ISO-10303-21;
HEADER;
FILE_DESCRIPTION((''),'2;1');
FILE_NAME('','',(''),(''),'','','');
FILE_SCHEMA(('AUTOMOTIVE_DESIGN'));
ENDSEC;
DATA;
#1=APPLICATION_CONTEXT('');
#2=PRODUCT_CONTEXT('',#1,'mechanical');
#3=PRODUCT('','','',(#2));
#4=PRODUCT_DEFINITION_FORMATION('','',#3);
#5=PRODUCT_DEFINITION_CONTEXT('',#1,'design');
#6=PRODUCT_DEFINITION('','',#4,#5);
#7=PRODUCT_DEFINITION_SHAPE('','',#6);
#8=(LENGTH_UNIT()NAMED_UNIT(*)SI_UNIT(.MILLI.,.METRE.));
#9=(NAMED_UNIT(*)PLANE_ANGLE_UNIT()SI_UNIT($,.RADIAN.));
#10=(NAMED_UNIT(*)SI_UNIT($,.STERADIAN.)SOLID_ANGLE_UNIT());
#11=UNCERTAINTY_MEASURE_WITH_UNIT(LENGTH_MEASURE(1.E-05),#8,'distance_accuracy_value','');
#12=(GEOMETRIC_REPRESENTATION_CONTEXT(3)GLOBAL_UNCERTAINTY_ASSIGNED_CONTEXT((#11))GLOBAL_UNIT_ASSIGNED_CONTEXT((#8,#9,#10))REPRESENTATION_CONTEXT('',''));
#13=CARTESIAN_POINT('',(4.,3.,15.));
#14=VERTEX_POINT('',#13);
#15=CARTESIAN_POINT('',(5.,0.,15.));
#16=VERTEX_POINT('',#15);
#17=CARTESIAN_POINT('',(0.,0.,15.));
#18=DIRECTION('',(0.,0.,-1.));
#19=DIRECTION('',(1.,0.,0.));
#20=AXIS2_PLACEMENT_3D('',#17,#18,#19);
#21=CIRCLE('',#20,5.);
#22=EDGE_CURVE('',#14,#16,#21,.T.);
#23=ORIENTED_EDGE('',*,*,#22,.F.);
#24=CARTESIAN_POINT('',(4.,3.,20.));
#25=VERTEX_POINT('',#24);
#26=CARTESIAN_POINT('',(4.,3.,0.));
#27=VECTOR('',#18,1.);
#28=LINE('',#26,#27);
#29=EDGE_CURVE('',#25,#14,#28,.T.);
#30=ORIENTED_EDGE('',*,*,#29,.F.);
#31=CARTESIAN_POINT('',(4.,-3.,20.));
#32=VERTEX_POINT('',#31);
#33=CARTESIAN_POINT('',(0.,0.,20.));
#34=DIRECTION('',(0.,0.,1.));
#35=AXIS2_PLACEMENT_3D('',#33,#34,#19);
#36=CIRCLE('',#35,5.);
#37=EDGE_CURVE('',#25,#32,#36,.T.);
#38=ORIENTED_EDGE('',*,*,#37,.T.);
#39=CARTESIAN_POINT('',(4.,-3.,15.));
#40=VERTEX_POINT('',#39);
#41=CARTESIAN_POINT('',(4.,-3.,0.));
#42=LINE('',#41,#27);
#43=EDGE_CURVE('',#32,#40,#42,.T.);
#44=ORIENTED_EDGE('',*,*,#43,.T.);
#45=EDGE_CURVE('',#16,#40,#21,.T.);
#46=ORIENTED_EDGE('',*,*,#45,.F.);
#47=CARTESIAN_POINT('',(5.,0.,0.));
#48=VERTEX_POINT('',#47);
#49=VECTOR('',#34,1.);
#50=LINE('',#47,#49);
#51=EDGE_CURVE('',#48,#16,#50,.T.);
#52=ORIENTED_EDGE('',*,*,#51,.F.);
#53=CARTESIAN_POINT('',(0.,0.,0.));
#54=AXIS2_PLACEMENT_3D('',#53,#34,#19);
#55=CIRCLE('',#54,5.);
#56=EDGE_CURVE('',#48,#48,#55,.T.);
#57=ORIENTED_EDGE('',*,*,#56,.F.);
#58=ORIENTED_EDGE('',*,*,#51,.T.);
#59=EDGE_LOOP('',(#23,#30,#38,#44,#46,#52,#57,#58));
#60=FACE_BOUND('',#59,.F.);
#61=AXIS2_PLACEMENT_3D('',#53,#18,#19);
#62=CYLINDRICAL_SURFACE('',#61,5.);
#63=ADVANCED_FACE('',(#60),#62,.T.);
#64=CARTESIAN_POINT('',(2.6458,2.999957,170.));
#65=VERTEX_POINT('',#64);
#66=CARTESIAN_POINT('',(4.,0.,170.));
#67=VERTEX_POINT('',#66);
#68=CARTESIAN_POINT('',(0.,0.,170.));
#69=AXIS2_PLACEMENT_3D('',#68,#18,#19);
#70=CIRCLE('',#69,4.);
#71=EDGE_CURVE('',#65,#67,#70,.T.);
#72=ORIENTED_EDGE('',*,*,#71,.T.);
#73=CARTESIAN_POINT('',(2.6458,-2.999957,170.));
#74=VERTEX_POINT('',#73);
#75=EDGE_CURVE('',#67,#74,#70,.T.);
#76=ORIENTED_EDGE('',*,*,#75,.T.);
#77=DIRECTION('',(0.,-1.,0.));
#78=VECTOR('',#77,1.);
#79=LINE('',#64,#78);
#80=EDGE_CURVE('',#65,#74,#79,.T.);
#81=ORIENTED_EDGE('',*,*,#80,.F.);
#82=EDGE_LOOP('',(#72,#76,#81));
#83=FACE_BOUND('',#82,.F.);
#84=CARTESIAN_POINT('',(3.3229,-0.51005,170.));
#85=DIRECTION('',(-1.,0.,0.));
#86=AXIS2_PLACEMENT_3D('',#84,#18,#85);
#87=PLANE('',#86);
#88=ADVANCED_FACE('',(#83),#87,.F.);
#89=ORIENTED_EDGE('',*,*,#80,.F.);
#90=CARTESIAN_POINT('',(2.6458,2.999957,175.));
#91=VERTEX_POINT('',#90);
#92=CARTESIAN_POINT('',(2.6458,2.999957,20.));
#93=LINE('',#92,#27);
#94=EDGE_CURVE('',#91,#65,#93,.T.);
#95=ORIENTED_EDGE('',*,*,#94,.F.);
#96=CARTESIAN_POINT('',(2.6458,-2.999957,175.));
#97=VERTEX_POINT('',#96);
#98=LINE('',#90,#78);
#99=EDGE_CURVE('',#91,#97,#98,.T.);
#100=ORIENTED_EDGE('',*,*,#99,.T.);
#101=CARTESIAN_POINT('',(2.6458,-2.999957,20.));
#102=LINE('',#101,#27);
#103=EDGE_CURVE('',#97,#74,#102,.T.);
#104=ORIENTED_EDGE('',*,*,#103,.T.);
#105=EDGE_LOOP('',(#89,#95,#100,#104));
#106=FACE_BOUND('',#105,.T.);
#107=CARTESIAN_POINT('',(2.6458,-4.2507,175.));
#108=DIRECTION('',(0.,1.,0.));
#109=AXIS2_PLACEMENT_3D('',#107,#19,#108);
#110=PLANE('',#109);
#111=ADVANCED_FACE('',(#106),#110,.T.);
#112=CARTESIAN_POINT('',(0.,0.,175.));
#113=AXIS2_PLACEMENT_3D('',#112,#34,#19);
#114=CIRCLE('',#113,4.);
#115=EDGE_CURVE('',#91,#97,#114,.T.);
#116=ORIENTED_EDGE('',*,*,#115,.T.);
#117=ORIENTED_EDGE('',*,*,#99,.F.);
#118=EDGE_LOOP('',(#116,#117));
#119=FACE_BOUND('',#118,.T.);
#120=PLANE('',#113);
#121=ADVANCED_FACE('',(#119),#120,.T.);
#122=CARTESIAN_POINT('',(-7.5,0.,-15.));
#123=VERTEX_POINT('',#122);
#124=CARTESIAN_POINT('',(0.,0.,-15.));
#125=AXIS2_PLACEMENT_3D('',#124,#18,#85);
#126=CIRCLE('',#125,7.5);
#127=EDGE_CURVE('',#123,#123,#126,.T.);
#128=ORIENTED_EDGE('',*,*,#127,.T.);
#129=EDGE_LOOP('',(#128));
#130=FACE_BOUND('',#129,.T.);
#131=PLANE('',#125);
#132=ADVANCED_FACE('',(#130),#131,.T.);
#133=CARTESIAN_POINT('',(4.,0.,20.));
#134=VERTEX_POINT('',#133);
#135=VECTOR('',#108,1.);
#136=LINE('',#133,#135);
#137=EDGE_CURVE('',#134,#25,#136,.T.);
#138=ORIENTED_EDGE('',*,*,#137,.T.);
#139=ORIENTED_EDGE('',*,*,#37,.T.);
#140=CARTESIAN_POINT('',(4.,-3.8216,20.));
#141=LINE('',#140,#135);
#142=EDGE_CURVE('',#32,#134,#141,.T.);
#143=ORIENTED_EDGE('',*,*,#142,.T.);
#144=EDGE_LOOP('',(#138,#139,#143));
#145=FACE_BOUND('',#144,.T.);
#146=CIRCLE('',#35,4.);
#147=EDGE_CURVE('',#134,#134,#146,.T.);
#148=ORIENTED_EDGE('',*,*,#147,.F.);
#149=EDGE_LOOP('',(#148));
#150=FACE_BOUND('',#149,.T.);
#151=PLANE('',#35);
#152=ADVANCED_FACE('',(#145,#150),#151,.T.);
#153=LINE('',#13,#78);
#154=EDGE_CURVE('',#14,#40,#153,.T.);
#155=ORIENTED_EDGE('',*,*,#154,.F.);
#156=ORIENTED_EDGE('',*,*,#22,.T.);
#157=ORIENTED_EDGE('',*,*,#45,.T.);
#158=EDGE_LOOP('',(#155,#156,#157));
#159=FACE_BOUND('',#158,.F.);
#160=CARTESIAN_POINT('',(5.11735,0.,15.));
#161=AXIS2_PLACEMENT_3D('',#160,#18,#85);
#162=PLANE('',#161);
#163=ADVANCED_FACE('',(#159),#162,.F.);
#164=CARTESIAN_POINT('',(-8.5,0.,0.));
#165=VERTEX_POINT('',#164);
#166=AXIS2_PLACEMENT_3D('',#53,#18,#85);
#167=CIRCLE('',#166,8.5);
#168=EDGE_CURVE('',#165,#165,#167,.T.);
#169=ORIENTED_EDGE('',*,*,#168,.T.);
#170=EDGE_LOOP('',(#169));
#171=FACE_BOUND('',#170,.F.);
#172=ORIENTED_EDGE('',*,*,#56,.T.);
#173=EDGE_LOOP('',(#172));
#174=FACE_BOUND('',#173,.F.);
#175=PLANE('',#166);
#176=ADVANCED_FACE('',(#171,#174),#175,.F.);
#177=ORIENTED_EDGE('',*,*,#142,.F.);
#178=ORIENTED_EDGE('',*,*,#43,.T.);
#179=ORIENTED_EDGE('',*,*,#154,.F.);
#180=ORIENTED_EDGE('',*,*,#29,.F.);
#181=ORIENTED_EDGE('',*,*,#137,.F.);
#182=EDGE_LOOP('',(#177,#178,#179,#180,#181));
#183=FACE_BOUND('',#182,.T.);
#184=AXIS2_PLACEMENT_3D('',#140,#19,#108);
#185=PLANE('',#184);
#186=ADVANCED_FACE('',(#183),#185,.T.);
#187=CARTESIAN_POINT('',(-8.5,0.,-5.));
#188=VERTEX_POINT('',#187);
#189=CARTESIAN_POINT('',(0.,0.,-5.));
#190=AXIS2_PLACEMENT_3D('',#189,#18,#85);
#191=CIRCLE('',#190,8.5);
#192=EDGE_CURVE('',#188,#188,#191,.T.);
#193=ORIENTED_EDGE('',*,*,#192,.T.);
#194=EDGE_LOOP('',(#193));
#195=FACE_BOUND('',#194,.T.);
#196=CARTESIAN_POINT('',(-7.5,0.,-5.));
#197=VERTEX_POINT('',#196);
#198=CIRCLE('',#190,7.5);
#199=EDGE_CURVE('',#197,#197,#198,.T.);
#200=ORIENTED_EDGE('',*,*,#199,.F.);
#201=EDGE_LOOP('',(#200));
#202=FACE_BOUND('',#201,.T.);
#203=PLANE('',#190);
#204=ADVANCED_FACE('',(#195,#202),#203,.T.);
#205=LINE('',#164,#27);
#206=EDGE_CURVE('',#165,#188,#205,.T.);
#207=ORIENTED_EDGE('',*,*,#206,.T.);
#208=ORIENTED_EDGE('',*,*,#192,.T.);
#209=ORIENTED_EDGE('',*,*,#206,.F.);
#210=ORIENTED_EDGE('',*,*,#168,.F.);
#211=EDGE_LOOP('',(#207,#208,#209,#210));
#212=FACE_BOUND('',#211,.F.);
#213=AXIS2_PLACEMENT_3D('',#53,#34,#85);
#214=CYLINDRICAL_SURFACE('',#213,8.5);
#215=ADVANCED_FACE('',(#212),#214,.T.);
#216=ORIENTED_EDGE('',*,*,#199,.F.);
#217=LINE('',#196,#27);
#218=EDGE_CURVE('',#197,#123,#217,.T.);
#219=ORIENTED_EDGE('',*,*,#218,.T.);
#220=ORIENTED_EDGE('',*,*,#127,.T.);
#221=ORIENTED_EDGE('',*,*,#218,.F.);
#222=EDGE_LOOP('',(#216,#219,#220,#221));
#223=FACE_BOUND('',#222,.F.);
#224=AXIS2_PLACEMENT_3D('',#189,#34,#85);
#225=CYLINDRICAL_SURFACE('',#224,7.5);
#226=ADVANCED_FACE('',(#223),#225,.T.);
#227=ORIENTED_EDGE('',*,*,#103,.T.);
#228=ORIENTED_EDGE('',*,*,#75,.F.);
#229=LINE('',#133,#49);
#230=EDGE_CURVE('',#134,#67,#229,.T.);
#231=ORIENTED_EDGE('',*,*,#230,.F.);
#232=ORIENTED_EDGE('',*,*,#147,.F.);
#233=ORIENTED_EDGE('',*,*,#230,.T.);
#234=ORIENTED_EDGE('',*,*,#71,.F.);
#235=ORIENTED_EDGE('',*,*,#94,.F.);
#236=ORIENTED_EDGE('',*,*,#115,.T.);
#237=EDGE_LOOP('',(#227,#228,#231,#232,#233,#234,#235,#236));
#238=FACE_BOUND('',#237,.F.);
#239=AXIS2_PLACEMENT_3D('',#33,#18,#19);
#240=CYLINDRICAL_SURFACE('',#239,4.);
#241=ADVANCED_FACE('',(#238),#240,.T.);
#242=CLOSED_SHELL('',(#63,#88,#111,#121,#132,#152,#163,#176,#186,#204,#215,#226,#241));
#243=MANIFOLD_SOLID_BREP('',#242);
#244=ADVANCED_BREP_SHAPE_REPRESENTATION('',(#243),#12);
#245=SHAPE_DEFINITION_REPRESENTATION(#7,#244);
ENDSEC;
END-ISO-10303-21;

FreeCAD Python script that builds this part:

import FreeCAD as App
import Part
import Sketcher


def add_polygon(sketch, points):
    """Adds a closed chain of lines whose ends are joined by coincident constraints."""
    first, n = sketch.GeometryCount, len(points)
    for a, b in zip(points, points[1:] + points[:1]):
        sketch.addGeometry(Part.LineSegment(App.Vector(*a, 0), App.Vector(*b, 0)), False)
    for i in range(n):
        sketch.addConstraint(Sketcher.Constraint("Coincident", first + i, 2, first + (i + 1) % n, 1))

doc = App.newDocument("Part")
body = doc.addObject("PartDesign::Body", "Body")

# Sketch on XY plane
sketch1 = body.newObject("Sketcher::SketchObject", "Sketch")
sketch1.AttachmentSupport = (doc.getObject("XY_Plane"), [""])
sketch1.MapMode = "FlatFace"
sketch1.addGeometry(Part.Circle(App.Vector(0, 0, 0), App.Vector(0, 0, 1), 5), False)
sketch1.addConstraint([
    Sketcher.Constraint("Coincident", 0, 3, -1, 1),
    Sketcher.Constraint("Diameter", 0, 10.0),
])
pad1 = body.newObject("PartDesign::Pad", "Pad")
pad1.Profile = sketch1
pad1.Length = 20

# Sketch on XY plane
sketch2 = body.newObject("Sketcher::SketchObject", "Sketch001")
sketch2.AttachmentSupport = (doc.getObject("XY_Plane"), [""])
sketch2.MapMode = "FlatFace"
sketch2.AttachmentOffset = App.Placement(App.Vector(0, 0, 20), App.Rotation())
sketch2.addGeometry(Part.Circle(App.Vector(0, 0, 0), App.Vector(0, 0, 1), 4), False)
sketch2.addConstraint([
    Sketcher.Constraint("Coincident", 0, 3, -1, 1),
    Sketcher.Constraint("Diameter", 0, 8.0),
])
pad2 = body.newObject("PartDesign::Pad", "Pad001")
pad2.Profile = sketch2
pad2.Length = 155

# Sketch on XY plane
sketch3 = body.newObject("Sketcher::SketchObject", "Sketch002")
sketch3.AttachmentSupport = (doc.getObject("XY_Plane"), [""])
sketch3.MapMode = "FlatFace"
sketch3.AttachmentOffset = App.Placement(App.Vector(0, 0, 20), App.Rotation())
add_polygon(sketch3, [(6.2, -3.8), (6.2, 3.8), (4, 3.8), (4, -3.8)])  # lines 0-3
sketch3.addConstraint([
    Sketcher.Constraint("Vertical", 0),
    Sketcher.Constraint("Horizontal", 1),
    Sketcher.Constraint("Vertical", 2),
    Sketcher.Constraint("Horizontal", 3),
    Sketcher.Constraint("DistanceX", -1, 1, 1, 2, 4.0),
    Sketcher.Constraint("DistanceX", 1, 2, 1, 1, 2.2347),
    Sketcher.Constraint("DistanceY", 0, 1, 0, 2, 7.6432),
    Sketcher.Constraint("DistanceY", -1, 1, 0, 2, 3.8216),
])
pocket1 = body.newObject("PartDesign::Pocket", "Pocket")
pocket1.Profile = sketch3
pocket1.Length = 5

# Sketch on XY plane
sketch4 = body.newObject("Sketcher::SketchObject", "Sketch003")
sketch4.AttachmentSupport = (doc.getObject("XY_Plane"), [""])
sketch4.MapMode = "FlatFace"
sketch4.AttachmentOffset = App.Placement(App.Vector(0, 0, 175), App.Rotation())
add_polygon(sketch4, [(4, -4.3), (4, 3.2), (2.6, 3.2), (2.6, -4.3)])  # lines 0-3
sketch4.addConstraint([
    Sketcher.Constraint("Vertical", 0),
    Sketcher.Constraint("Horizontal", 1),
    Sketcher.Constraint("Vertical", 2),
    Sketcher.Constraint("Horizontal", 3),
    Sketcher.Constraint("DistanceX", -1, 1, 0, 2, 4.0),
    Sketcher.Constraint("DistanceX", 1, 2, 1, 1, 1.3542),
    Sketcher.Constraint("DistanceY", 0, 1, 0, 2, 7.4813),
    Sketcher.Constraint("DistanceY", -1, 1, 0, 2, 3.2306),
])
pocket2 = body.newObject("PartDesign::Pocket", "Pocket001")
pocket2.Profile = sketch4
pocket2.Length = 5

# Sketch on XY plane
sketch5 = body.newObject("Sketcher::SketchObject", "Sketch004")
sketch5.AttachmentSupport = (doc.getObject("XY_Plane"), [""])
sketch5.MapMode = "FlatFace"
sketch5.addGeometry(Part.Circle(App.Vector(0, 0, 0), App.Vector(0, 0, 1), 8), False)
sketch5.addConstraint([
    Sketcher.Constraint("Coincident", 0, 3, -1, 1),
    Sketcher.Constraint("Diameter", 0, 17.0),
])
pad3 = body.newObject("PartDesign::Pad", "Pad002")
pad3.Profile = sketch5
pad3.Length = 5
pad3.Reversed = True

# Sketch on XY plane
sketch6 = body.newObject("Sketcher::SketchObject", "Sketch005")
sketch6.AttachmentSupport = (doc.getObject("XY_Plane"), [""])
sketch6.MapMode = "FlatFace"
sketch6.AttachmentOffset = App.Placement(App.Vector(0, 0, -5), App.Rotation())
sketch6.addGeometry(Part.Circle(App.Vector(0, 0, 0), App.Vector(0, 0, 1), 8), False)
sketch6.addConstraint([
    Sketcher.Constraint("Coincident", 0, 3, -1, 1),
    Sketcher.Constraint("Diameter", 0, 15.0),
])
pad4 = body.newObject("PartDesign::Pad", "Pad003")
pad4.Profile = sketch6
pad4.Length = 10
pad4.Reversed = True

doc.recompute()
